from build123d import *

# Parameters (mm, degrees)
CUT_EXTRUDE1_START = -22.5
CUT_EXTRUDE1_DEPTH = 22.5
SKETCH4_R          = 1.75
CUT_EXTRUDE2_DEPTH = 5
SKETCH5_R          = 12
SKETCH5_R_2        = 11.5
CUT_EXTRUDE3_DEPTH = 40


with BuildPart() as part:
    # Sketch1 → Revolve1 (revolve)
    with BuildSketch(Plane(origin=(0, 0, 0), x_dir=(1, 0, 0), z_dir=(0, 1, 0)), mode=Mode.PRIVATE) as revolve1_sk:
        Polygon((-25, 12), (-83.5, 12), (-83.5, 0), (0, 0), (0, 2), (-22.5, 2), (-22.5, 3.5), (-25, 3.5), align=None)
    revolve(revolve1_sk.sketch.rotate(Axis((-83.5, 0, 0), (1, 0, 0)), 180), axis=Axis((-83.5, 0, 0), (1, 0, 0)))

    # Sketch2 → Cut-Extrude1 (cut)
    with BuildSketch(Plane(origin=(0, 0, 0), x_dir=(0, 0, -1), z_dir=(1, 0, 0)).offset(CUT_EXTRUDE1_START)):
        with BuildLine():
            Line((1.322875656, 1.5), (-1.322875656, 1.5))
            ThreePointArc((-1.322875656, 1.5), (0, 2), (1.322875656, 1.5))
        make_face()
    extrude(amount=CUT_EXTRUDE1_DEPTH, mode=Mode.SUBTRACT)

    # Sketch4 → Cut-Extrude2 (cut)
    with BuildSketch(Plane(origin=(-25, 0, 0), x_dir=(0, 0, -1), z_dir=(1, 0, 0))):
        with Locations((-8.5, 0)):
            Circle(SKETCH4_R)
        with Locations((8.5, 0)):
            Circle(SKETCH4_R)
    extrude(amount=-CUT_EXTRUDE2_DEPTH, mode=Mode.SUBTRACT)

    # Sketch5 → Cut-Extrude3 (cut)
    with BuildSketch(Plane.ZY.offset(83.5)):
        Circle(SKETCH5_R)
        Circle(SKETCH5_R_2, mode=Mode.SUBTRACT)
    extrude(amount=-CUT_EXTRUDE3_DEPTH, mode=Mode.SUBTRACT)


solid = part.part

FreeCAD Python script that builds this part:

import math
import FreeCAD as App
import Part
import Sketcher
from FreeCAD import Vector
Q = App.Units.Quantity


def add_polygon(sketch, points):
    """Adds a closed chain of lines whose ends are joined by coincident constraints."""
    first, n = sketch.GeometryCount, len(points)
    for a, b in zip(points, points[1:] + points[:1]):
        sketch.addGeometry(Part.LineSegment(App.Vector(*a, 0), App.Vector(*b, 0)), False)
    for i in range(n):
        sketch.addConstraint(Sketcher.Constraint("Coincident", first + i, 2, first + (i + 1) % n, 1))

doc = App.newDocument("Part")
body = doc.addObject("PartDesign::Body", "Body")

sketch1 = doc.addObject("Sketcher::SketchObject", "Sketch")
body.addObject(sketch1)
sketch1.AttachmentSupport = (doc.XZ_Plane, [""])
sketch1.MapMode = "FlatFace"
add_polygon(sketch1, [(-25, -12), (-83.5, -12), (-83.5, 0), (0, 0), (0, -2), (-22.5, -2), (-22.5, -3.5), (-25, -3.5)])
sketch1.addConstraint(Sketcher.Constraint("Horizontal", 0))
sketch1.addConstraint(Sketcher.Constraint("Vertical", 1))
sketch1.addConstraint(Sketcher.Constraint("Horizontal", 2))
sketch1.addConstraint(Sketcher.Constraint("Vertical", 3))
sketch1.addConstraint(Sketcher.Constraint("Horizontal", 4))
sketch1.addConstraint(Sketcher.Constraint("Vertical", 5))
sketch1.addConstraint(Sketcher.Constraint("Horizontal", 6))
sketch1.addConstraint(Sketcher.Constraint("Vertical", 7))
sketch1.addConstraint(Sketcher.Constraint("Coincident", 2, 2, -1, 1))
sketch1.addConstraint(Sketcher.Constraint("DistanceY", 1, 1, 1, 2, Q("12 mm")))
sketch1.addConstraint(Sketcher.Constraint("DistanceY", 3, 2, 3, 1, Q("2 mm")))
sketch1.addConstraint(Sketcher.Constraint("DistanceX", 0, 2, 0, 1, Q("58.5 mm")))
sketch1.addConstraint(Sketcher.Constraint("DistanceX", 2, 1, 2, 2, Q("83.5 mm")))
sketch1.addConstraint(Sketcher.Constraint("DistanceX", 4, 2, 4, 1, Q("22.5 mm")))
sketch1.addConstraint(Sketcher.Constraint("DistanceY", 5, 2, 5, 1, Q("1.5 mm")))
revolution = doc.addObject("PartDesign::Revolution", "Revolution")
body.addObject(revolution)
revolution.Profile = sketch1
revolution.ReferenceAxis = (sketch1, ["H_Axis"])
revolution.Angle = 360

sketch2 = doc.addObject("Sketcher::SketchObject", "Sketch001")
body.addObject(sketch2)
sketch2.AttachmentSupport = (doc.YZ_Plane, [""])
sketch2.MapMode = "FlatFace"
sketch2.AttachmentOffset = App.Placement(Vector(0, 0, -22.5), App.Rotation())
sketch2.addGeometry(Part.LineSegment(Vector(1.5, 1.3, 0), Vector(1.5, -1.3, 0)), False)
sketch2.addGeometry(Part.ArcOfCircle(Part.Circle(Vector(0, 0, 0), Vector(0, 0, 1), 2), math.radians(-41), math.radians(41)), False)
sketch2.addConstraint(Sketcher.Constraint("Coincident", 0, 1, 1, 2))
sketch2.addConstraint(Sketcher.Constraint("Coincident", 1, 1, 0, 2))
sketch2.addConstraint(Sketcher.Constraint("Vertical", 0))
sketch2.addConstraint(Sketcher.Constraint("Coincident", 1, 3, -1, 1))
sketch2.addConstraint(Sketcher.Constraint("Radius", 1, Q("2 mm")))
sketch2.addConstraint(Sketcher.Constraint("DistanceX", -1, 1, 0, 1, Q("1.5 mm")))
pocket1 = doc.addObject("PartDesign::Pocket", "Pocket")
body.addObject(pocket1)
pocket1.Profile = sketch2
pocket1.Length = 22.5
pocket1.Reversed = True

sketch3 = doc.addObject("Sketcher::SketchObject", "Sketch002")
body.addObject(sketch3)
sketch3.AttachmentSupport = (doc.YZ_Plane, [""])
sketch3.MapMode = "FlatFace"
sketch3.AttachmentOffset = App.Placement(Vector(0, 0, -25), App.Rotation())
sketch3.addGeometry(Part.Circle(Vector(0, 8.5, 0), Vector(0, 0, 1), 1.8), False)
sketch3.addGeometry(Part.Circle(Vector(0, -8.5, 0), Vector(0, 0, 1), 1.8), False)
sketch3.addConstraint(Sketcher.Constraint("Equal", 0, 1))
sketch3.addConstraint(Sketcher.Constraint("Symmetric", 0, 3, 1, 3, -1, 1))
sketch3.addConstraint(Sketcher.Constraint("PointOnObject", 0, 3, -2))
sketch3.addConstraint(Sketcher.Constraint("Diameter", 0, Q("3.5 mm")))
sketch3.addConstraint(Sketcher.Constraint("DistanceY", 1, 3, 0, 3, Q("17 mm")))
pocket2 = doc.addObject("PartDesign::Pocket", "Pocket001")
body.addObject(pocket2)
pocket2.Profile = sketch3
pocket2.Length = 5

sketch4 = doc.addObject("Sketcher::SketchObject", "Sketch003")
body.addObject(sketch4)
sketch4.AttachmentSupport = (doc.YZ_Plane, [""])
sketch4.MapMode = "FlatFace"
sketch4.AttachmentOffset = App.Placement(Vector(0, 0, -83.5), App.Rotation())
sketch4.addGeometry(Part.Circle(Vector(0, 0, 0), Vector(0, 0, 1), 12), False)
sketch4.addGeometry(Part.Circle(Vector(0, 0, 0), Vector(0, 0, 1), 12), False)
sketch4.addConstraint(Sketcher.Constraint("Coincident", 0, 3, -1, 1))
sketch4.addConstraint(Sketcher.Constraint("Coincident", 1, 3, -1, 1))
sketch4.addConstraint(Sketcher.Constraint("Diameter", 0, Q("24 mm")))
sketch4.addConstraint(Sketcher.Constraint("Diameter", 1, Q("23 mm")))
pocket3 = doc.addObject("PartDesign::Pocket", "Pocket002")
body.addObject(pocket3)
pocket3.Profile = sketch4
pocket3.Length = 40
pocket3.Reversed = True

doc.recompute()
